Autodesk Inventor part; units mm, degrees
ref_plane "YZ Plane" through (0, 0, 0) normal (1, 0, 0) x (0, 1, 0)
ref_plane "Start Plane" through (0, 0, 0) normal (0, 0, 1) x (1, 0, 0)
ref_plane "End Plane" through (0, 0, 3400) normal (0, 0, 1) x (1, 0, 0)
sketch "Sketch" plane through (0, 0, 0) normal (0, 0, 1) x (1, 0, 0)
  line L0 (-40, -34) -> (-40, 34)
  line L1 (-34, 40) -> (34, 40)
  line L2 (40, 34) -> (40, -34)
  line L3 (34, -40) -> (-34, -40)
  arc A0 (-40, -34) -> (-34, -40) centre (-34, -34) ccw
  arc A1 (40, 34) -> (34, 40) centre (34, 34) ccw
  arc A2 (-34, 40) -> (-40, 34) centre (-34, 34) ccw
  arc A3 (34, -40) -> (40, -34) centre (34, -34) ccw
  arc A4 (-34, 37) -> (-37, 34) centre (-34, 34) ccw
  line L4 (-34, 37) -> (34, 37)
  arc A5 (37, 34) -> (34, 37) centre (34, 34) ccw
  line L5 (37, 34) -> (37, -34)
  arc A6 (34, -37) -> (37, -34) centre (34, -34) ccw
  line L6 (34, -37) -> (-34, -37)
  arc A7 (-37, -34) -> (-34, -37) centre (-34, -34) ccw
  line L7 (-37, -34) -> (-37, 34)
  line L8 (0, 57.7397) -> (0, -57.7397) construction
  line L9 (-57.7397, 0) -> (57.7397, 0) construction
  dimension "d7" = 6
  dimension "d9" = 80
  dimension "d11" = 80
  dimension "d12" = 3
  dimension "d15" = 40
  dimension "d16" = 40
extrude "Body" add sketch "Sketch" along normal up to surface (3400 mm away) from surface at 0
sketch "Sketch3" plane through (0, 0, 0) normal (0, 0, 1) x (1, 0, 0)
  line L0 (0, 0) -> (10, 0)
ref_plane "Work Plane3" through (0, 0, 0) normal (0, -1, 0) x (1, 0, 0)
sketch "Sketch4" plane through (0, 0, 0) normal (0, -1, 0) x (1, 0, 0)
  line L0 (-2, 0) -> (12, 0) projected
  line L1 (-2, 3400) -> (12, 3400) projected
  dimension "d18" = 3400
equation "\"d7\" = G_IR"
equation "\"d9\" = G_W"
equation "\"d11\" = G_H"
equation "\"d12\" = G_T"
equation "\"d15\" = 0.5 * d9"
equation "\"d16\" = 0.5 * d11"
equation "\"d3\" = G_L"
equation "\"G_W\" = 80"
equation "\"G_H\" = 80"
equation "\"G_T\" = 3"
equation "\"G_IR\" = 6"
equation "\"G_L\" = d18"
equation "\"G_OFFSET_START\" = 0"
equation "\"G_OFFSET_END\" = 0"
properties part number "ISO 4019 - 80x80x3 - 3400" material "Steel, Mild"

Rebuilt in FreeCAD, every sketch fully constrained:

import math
import FreeCAD as App
import Part
import Sketcher
Q = App.Units.Quantity

doc = App.newDocument("Part")
params = doc.addObject("Spreadsheet::Sheet", "Params")
for row, (alias, value) in enumerate([
    ("sketch1_radius", "6 mm"),
    ("sketch1_radius2", "3 mm"),
    ("pad1_length", "3400 mm"),
], start=1):
    params.set(f"A{row}", alias)
    params.set(f"B{row}", "=" + value)
    params.setAlias(f"B{row}", alias)

body = doc.addObject("PartDesign::Body", "Body")

sketch1 = body.newObject("Sketcher::SketchObject", "Sketch")
sketch1.AttachmentSupport = (doc.getObject("XY_Plane"), [""])
sketch1.MapMode = "FlatFace"
sketch1.addGeometry(Part.LineSegment(App.Vector(-40, 34, 0), App.Vector(-40, -34, 0)), False)
sketch1.addGeometry(Part.ArcOfCircle(Part.Circle(App.Vector(-34, -34, 0), App.Vector(0, 0, 1), 6), math.radians(180), math.radians(270)), False)
sketch1.addGeometry(Part.LineSegment(App.Vector(-34, -40, 0), App.Vector(34, -40, 0)), False)
sketch1.addGeometry(Part.ArcOfCircle(Part.Circle(App.Vector(34, -34, 0), App.Vector(0, 0, 1), 6), math.radians(-90), math.radians(0)), False)
sketch1.addGeometry(Part.LineSegment(App.Vector(40, -34, 0), App.Vector(40, 34, 0)), False)
sketch1.addGeometry(Part.ArcOfCircle(Part.Circle(App.Vector(34, 34, 0), App.Vector(0, 0, 1), 6), math.radians(0), math.radians(90)), False)
sketch1.addGeometry(Part.LineSegment(App.Vector(34, 40, 0), App.Vector(-34, 40, 0)), False)
sketch1.addGeometry(Part.ArcOfCircle(Part.Circle(App.Vector(-34, 34, 0), App.Vector(0, 0, 1), 6), math.radians(90), math.radians(180)), False)
sketch1.addGeometry(Part.ArcOfCircle(Part.Circle(App.Vector(-34, 34, 0), App.Vector(0, 0, 1), 3), math.radians(90), math.radians(180)), False)
sketch1.addGeometry(Part.LineSegment(App.Vector(-34, 37, 0), App.Vector(34, 37, 0)), False)
sketch1.addGeometry(Part.ArcOfCircle(Part.Circle(App.Vector(34, 34, 0), App.Vector(0, 0, 1), 3), math.radians(0), math.radians(90)), False)
sketch1.addGeometry(Part.LineSegment(App.Vector(37, 34, 0), App.Vector(37, -34, 0)), False)
sketch1.addGeometry(Part.ArcOfCircle(Part.Circle(App.Vector(34, -34, 0), App.Vector(0, 0, 1), 3), math.radians(-90), math.radians(0)), False)
sketch1.addGeometry(Part.LineSegment(App.Vector(34, -37, 0), App.Vector(-34, -37, 0)), False)
sketch1.addGeometry(Part.ArcOfCircle(Part.Circle(App.Vector(-34, -34, 0), App.Vector(0, 0, 1), 3), math.radians(180), math.radians(270)), False)
sketch1.addGeometry(Part.LineSegment(App.Vector(-37, -34, 0), App.Vector(-37, 34, 0)), False)
sketch1.addConstraint(Sketcher.Constraint("Tangent", 0, 2, 1, 1))
sketch1.addConstraint(Sketcher.Constraint("Tangent", 1, 2, 2, 1))
sketch1.addConstraint(Sketcher.Constraint("Tangent", 2, 2, 3, 1))
sketch1.addConstraint(Sketcher.Constraint("Tangent", 3, 2, 4, 1))
sketch1.addConstraint(Sketcher.Constraint("Tangent", 4, 2, 5, 1))
sketch1.addConstraint(Sketcher.Constraint("Tangent", 5, 2, 6, 1))
sketch1.addConstraint(Sketcher.Constraint("Tangent", 6, 2, 7, 1))
sketch1.addConstraint(Sketcher.Constraint("Tangent", 7, 2, 0, 1))
sketch1.addConstraint(Sketcher.Constraint("Tangent", 8, 1, 9, 1))
sketch1.addConstraint(Sketcher.Constraint("Tangent", 9, 2, 10, 2))
sketch1.addConstraint(Sketcher.Constraint("Tangent", 10, 1, 11, 1))
sketch1.addConstraint(Sketcher.Constraint("Tangent", 11, 2, 12, 2))
sketch1.addConstraint(Sketcher.Constraint("Tangent", 12, 1, 13, 1))
sketch1.addConstraint(Sketcher.Constraint("Tangent", 13, 2, 14, 2))
sketch1.addConstraint(Sketcher.Constraint("Tangent", 14, 1, 15, 1))
sketch1.addConstraint(Sketcher.Constraint("Tangent", 15, 2, 8, 2))
sketch1.addConstraint(Sketcher.Constraint("Vertical", 0))
sketch1.addConstraint(Sketcher.Constraint("Horizontal", 2))
sketch1.addConstraint(Sketcher.Constraint("Vertical", 4))
sketch1.addConstraint(Sketcher.Constraint("Horizontal", 6))
sketch1.addConstraint(Sketcher.Constraint("Horizontal", 9))
sketch1.addConstraint(Sketcher.Constraint("Vertical", 11))
sketch1.addConstraint(Sketcher.Constraint("Horizontal", 13))
sketch1.addConstraint(Sketcher.Constraint("Vertical", 15))
sketch1.addConstraint(Sketcher.Constraint("Coincident", 8, 3, 7, 3))
sketch1.addConstraint(Sketcher.Constraint("Coincident", 10, 3, 5, 3))
sketch1.addConstraint(Sketcher.Constraint("Coincident", 12, 3, 3, 3))
sketch1.addConstraint(Sketcher.Constraint("Equal", 1, 3))
sketch1.addConstraint(Sketcher.Constraint("Equal", 3, 5))
sketch1.addConstraint(Sketcher.Constraint("Equal", 5, 7))
sketch1.addConstraint(Sketcher.Constraint("Equal", 12, 14))
sketch1.addConstraint(Sketcher.Constraint("Symmetric", 1, 3, 5, 3, -1, 1))
sketch1.addConstraint(Sketcher.Constraint("Equal", 13, 0))
sketch1.addConstraint(Sketcher.Constraint("Radius", 1, Q("6 mm")))
sketch1.addConstraint(Sketcher.Constraint("Radius", 8, Q("3 mm")))
sketch1.addConstraint(Sketcher.Constraint("DistanceX", 0, 2, -1, 1, Q("40 mm")))
sketch1.setExpression("Constraints[33]", "Params.sketch1_radius")
sketch1.setExpression("Constraints[34]", "Params.sketch1_radius2")
pad1 = body.newObject("PartDesign::Pad", "Pad")
pad1.Profile = sketch1
pad1.setExpression("Length", "Params.pad1_length")

doc.recompute()
